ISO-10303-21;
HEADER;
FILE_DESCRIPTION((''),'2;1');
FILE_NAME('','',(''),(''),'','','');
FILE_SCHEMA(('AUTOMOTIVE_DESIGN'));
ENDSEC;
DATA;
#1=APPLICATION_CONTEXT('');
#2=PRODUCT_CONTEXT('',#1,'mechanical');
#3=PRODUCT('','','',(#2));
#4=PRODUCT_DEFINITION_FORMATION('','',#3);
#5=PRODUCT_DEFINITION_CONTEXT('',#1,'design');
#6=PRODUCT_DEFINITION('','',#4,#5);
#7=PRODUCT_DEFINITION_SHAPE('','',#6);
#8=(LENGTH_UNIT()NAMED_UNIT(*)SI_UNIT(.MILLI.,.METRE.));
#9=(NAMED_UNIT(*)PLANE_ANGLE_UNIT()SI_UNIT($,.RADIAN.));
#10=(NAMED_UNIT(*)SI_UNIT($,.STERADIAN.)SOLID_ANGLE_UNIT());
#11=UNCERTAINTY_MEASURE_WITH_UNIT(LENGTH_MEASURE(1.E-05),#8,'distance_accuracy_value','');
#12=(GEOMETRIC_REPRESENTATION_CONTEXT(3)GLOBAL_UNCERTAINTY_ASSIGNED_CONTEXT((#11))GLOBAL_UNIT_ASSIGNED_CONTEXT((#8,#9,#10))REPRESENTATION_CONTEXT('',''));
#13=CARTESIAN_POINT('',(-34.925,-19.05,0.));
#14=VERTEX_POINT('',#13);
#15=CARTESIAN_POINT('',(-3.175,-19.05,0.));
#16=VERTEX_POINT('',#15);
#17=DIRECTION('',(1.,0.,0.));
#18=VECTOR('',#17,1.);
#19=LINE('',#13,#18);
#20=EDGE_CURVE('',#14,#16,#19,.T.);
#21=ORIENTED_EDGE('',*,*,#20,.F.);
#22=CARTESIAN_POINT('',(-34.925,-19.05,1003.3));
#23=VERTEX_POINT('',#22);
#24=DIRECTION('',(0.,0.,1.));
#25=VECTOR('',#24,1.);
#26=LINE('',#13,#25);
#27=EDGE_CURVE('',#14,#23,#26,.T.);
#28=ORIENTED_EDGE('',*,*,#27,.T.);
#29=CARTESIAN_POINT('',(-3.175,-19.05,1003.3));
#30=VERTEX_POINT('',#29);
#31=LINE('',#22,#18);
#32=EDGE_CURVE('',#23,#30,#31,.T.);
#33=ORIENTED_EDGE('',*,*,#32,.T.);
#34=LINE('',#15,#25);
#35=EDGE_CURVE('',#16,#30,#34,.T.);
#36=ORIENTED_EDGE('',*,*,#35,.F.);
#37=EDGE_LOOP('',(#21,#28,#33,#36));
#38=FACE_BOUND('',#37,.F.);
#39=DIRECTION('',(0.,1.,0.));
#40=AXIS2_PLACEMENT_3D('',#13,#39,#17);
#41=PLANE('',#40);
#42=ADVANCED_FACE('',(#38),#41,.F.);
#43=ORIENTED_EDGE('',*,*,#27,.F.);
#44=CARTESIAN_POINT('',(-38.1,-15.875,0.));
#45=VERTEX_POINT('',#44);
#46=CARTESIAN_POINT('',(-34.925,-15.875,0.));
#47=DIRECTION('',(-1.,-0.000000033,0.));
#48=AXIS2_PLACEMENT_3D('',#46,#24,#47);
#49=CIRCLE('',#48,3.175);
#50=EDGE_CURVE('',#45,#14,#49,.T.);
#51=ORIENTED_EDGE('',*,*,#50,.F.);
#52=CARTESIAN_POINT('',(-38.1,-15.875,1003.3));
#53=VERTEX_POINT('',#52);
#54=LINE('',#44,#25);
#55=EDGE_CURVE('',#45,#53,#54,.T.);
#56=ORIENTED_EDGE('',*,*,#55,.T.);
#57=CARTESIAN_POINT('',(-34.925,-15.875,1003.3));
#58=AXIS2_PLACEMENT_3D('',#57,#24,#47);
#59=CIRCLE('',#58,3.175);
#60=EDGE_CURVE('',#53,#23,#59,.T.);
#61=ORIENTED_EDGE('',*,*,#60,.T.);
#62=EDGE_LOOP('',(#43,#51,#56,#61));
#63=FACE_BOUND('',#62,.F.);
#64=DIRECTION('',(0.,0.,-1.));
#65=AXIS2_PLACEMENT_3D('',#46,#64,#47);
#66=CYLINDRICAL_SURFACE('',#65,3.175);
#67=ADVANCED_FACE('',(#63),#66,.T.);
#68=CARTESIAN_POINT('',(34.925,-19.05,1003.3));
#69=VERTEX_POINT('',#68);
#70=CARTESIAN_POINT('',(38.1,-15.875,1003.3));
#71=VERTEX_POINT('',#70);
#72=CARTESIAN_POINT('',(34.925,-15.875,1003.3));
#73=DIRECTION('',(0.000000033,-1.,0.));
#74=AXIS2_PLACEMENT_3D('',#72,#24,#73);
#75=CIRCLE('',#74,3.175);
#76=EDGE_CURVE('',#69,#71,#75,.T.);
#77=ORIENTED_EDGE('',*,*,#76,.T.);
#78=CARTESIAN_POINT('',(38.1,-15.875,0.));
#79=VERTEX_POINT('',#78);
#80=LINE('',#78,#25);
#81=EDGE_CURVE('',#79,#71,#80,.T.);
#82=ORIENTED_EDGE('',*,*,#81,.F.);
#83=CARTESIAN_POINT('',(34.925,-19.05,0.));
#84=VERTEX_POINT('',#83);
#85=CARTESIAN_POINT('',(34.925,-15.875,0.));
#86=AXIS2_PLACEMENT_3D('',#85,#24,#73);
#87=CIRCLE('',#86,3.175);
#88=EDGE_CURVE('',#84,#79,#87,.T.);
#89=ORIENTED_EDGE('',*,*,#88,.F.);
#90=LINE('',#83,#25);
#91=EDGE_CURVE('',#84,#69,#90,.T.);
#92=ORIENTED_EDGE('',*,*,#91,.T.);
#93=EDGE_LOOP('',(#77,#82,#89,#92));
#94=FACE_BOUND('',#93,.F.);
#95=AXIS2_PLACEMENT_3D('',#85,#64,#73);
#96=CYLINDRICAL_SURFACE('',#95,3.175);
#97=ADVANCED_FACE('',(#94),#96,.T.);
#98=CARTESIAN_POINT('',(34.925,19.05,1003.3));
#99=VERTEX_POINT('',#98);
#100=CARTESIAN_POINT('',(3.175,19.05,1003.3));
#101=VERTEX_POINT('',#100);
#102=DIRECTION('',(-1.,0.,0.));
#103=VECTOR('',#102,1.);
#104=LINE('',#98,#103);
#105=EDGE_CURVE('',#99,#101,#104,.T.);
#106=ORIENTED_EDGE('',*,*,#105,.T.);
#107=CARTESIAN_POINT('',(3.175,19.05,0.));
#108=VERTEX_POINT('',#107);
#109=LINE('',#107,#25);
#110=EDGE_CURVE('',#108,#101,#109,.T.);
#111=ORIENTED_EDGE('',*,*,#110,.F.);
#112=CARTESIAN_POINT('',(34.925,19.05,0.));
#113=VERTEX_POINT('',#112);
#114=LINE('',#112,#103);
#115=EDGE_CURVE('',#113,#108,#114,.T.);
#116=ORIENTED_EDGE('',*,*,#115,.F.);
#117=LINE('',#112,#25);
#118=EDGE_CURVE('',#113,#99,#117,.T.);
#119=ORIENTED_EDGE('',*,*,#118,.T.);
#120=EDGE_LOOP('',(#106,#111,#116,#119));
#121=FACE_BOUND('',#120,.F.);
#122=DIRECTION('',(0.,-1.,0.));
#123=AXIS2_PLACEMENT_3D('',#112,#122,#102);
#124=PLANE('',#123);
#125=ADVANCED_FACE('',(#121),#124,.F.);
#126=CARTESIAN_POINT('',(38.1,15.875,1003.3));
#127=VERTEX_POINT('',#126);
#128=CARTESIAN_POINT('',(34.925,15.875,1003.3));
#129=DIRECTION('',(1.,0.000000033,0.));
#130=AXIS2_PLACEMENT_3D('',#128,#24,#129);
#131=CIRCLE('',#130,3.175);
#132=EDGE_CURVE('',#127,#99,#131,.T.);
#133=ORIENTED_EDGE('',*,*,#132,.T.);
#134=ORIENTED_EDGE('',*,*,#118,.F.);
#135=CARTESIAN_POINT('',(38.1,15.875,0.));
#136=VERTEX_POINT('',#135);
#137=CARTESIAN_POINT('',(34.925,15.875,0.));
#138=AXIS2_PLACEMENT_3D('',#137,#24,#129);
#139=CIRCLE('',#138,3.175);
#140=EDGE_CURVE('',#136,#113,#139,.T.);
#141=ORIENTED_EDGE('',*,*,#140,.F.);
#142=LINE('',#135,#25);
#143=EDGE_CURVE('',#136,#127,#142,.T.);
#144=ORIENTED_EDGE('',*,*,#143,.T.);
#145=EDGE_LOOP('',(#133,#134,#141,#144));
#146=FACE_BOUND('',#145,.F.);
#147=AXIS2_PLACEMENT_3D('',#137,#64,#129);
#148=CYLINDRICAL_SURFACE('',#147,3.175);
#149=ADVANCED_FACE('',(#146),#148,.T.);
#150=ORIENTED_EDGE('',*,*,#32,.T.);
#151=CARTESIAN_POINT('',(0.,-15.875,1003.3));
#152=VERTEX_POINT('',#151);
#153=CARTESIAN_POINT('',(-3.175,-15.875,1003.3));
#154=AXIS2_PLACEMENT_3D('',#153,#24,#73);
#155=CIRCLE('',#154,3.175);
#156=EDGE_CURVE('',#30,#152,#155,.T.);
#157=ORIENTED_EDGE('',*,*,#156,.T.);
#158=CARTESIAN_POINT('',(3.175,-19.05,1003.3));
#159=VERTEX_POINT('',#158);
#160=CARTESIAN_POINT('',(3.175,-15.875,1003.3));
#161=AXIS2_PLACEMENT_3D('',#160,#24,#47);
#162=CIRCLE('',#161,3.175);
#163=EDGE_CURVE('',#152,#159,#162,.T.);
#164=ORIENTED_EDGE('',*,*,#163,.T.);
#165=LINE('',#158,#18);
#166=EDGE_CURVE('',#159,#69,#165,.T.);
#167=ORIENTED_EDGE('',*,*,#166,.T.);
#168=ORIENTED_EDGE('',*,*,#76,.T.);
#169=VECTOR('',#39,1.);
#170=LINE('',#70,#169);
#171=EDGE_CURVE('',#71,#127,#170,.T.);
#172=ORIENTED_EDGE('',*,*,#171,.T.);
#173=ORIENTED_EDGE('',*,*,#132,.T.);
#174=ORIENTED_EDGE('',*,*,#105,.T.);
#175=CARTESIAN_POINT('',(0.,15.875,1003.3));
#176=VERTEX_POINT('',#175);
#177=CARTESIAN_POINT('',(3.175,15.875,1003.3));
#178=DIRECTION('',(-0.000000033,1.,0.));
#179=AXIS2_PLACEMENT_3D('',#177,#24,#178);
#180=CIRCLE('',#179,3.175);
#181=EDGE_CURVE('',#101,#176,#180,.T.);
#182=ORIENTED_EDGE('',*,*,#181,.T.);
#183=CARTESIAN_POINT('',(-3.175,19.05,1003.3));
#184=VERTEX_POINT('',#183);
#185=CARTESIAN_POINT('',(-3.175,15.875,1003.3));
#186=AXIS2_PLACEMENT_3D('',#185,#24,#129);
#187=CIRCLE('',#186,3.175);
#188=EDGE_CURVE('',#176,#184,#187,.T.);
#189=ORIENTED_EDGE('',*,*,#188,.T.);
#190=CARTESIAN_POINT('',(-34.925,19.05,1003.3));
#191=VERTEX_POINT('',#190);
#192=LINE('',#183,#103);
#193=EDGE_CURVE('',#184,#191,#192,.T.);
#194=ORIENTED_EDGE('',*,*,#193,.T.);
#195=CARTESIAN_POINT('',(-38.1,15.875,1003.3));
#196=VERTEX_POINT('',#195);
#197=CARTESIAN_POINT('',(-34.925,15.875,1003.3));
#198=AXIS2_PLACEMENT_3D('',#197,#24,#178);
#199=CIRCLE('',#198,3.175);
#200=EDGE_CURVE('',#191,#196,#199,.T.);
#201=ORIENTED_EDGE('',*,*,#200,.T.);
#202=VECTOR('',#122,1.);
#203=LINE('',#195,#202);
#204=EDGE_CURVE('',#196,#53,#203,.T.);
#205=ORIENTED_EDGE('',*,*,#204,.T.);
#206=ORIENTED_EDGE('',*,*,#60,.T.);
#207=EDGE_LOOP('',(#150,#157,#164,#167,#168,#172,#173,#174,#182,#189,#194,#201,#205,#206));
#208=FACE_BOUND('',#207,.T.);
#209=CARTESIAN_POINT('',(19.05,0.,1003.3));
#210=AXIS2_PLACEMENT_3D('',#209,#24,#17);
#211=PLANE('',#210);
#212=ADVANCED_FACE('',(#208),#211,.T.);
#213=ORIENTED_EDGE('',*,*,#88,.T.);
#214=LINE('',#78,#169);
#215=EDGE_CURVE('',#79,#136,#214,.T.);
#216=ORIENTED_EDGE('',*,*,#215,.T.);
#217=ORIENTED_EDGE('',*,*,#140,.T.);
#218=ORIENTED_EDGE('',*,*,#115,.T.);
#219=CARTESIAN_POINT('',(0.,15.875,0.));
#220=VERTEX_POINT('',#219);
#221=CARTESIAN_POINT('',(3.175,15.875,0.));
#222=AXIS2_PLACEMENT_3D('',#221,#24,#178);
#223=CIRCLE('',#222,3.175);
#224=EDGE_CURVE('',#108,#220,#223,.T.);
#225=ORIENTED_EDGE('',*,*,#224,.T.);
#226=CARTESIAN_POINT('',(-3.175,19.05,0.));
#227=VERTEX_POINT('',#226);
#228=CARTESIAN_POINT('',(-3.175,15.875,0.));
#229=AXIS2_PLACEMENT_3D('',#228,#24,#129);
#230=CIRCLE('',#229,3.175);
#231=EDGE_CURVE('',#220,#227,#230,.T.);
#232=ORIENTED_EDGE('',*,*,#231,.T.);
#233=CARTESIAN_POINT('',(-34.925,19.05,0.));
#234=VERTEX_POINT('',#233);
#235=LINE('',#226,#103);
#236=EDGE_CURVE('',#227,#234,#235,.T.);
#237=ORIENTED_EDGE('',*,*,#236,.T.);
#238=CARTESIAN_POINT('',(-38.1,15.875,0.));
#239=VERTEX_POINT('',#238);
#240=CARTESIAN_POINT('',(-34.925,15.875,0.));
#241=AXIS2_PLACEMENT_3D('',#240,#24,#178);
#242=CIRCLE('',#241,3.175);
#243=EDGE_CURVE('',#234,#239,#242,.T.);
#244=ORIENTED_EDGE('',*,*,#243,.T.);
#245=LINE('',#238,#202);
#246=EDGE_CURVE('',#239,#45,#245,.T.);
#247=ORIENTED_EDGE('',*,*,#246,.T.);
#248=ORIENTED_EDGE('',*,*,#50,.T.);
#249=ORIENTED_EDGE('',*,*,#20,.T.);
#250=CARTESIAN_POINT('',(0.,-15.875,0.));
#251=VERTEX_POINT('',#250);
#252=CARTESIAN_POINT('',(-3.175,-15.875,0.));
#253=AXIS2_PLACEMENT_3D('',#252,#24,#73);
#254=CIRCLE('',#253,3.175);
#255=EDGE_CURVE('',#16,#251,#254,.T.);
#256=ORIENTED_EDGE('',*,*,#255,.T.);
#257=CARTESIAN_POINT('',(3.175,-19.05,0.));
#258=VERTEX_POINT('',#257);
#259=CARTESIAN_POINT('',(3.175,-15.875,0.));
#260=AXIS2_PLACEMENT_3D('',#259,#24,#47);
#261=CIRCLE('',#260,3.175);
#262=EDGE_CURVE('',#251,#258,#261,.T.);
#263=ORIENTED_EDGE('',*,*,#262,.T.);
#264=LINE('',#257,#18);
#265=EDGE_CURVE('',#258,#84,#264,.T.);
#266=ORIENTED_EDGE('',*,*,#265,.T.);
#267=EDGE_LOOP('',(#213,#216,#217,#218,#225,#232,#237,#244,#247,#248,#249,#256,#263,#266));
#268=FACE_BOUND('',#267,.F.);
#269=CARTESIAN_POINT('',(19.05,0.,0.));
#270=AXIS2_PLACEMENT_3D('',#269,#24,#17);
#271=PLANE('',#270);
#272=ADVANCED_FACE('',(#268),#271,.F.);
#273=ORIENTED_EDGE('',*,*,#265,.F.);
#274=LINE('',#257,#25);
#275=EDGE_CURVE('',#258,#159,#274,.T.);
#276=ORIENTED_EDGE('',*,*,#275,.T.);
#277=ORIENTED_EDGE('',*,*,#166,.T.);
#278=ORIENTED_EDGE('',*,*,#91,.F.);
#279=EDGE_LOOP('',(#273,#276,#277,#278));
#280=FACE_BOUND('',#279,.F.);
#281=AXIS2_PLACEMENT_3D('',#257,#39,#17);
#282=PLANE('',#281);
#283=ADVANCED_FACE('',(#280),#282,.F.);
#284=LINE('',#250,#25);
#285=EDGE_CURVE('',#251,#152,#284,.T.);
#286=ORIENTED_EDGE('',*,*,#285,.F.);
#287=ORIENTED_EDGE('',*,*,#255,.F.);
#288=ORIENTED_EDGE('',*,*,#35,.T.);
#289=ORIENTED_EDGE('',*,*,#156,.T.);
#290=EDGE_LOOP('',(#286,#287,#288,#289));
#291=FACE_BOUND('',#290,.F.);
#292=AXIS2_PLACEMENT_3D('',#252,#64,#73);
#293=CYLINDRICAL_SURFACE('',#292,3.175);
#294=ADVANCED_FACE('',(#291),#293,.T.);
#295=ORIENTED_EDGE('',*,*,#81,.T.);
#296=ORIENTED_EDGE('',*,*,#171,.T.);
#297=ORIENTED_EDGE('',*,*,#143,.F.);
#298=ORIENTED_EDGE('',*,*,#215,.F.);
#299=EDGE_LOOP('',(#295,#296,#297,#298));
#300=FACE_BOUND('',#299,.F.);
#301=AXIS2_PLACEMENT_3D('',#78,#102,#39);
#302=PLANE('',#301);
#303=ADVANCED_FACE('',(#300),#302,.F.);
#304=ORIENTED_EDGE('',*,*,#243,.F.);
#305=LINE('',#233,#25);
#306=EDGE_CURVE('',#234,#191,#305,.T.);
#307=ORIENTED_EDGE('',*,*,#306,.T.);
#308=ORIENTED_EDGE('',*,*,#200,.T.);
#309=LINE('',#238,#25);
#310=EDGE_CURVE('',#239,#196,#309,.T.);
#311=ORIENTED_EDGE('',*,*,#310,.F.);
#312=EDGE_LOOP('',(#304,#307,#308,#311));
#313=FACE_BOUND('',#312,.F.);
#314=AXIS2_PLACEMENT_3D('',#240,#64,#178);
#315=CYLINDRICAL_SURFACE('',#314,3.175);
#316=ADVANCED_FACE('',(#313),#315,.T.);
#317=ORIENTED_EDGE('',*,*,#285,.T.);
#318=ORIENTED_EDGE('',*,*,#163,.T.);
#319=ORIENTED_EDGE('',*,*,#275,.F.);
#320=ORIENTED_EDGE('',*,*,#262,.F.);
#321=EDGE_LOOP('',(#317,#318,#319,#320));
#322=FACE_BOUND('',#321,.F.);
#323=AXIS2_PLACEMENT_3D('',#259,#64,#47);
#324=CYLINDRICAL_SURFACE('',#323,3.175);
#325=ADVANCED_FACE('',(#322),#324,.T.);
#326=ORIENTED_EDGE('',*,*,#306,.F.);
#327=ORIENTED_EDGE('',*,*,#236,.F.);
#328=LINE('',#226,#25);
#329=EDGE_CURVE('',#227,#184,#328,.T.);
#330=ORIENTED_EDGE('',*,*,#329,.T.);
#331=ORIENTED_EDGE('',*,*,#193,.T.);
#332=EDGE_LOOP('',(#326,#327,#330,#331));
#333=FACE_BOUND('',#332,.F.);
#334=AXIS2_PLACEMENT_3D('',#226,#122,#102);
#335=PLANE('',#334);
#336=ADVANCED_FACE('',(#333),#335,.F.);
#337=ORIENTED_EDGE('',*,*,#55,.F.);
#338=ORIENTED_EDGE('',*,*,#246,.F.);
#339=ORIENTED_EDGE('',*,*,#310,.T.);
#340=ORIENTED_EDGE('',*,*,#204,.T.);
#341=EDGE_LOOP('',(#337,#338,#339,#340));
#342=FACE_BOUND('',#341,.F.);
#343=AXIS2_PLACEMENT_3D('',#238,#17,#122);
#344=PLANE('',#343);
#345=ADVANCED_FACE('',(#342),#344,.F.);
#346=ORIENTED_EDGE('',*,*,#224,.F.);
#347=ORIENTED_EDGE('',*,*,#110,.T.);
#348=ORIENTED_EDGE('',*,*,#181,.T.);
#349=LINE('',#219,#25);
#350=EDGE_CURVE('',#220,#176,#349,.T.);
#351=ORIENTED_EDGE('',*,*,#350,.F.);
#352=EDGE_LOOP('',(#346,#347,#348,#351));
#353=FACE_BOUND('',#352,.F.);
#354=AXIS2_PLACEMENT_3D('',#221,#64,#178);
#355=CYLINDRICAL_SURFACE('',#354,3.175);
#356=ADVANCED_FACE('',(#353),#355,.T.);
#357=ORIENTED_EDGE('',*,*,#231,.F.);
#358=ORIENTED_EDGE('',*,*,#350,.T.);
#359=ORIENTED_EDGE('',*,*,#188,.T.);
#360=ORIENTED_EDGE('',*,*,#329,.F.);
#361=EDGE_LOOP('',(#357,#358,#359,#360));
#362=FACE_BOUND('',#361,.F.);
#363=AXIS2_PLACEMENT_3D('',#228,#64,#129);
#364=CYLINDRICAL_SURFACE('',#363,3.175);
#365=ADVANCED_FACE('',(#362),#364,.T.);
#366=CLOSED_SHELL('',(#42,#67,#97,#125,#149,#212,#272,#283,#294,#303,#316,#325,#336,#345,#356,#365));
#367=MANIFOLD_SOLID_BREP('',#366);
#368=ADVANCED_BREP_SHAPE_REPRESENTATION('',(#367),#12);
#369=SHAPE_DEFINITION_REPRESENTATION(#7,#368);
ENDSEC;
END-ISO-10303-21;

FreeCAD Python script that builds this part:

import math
import FreeCAD as App
import Part
import Sketcher
Q = App.Units.Quantity

doc = App.newDocument("Part")
body = doc.addObject("PartDesign::Body", "Body")

# Sketch on XY plane
sketch1 = body.newObject("Sketcher::SketchObject", "Sketch")
sketch1.AttachmentSupport = (doc.getObject("XY_Plane"), [""])
sketch1.MapMode = "FlatFace"
sketch1.addGeometry(Part.ArcOfCircle(Part.Circle(App.Vector(34.9, 15.9, 0), App.Vector(0, 0, 1), 3.2), math.radians(0), math.radians(90)), False)
sketch1.addGeometry(Part.LineSegment(App.Vector(34.9, 19.1, 0), App.Vector(3.2, 19.1, 0)), False)
sketch1.addGeometry(Part.ArcOfCircle(Part.Circle(App.Vector(3.2, 15.9, 0), App.Vector(0, 0, 1), 3.2), math.radians(90), math.radians(180)), False)
sketch1.addGeometry(Part.ArcOfCircle(Part.Circle(App.Vector(-3.2, 15.9, 0), App.Vector(0, 0, 1), 3.2), math.radians(0), math.radians(90)), False)
sketch1.addGeometry(Part.LineSegment(App.Vector(-3.2, 19.1, 0), App.Vector(-34.9, 19.1, 0)), False)
sketch1.addGeometry(Part.ArcOfCircle(Part.Circle(App.Vector(-34.9, 15.9, 0), App.Vector(0, 0, 1), 3.2), math.radians(90), math.radians(180)), False)
sketch1.addGeometry(Part.LineSegment(App.Vector(-38.1, 15.9, 0), App.Vector(-38.1, -15.9, 0)), False)
sketch1.addGeometry(Part.ArcOfCircle(Part.Circle(App.Vector(-34.9, -15.9, 0), App.Vector(0, 0, 1), 3.2), math.radians(-180), math.radians(-90)), False)
sketch1.addGeometry(Part.LineSegment(App.Vector(-34.9, -19.1, 0), App.Vector(-3.2, -19.1, 0)), False)
sketch1.addGeometry(Part.ArcOfCircle(Part.Circle(App.Vector(-3.2, -15.9, 0), App.Vector(0, 0, 1), 3.2), math.radians(-90), math.radians(0)), False)
sketch1.addGeometry(Part.ArcOfCircle(Part.Circle(App.Vector(3.2, -15.9, 0), App.Vector(0, 0, 1), 3.2), math.radians(-180), math.radians(-90)), False)
sketch1.addGeometry(Part.LineSegment(App.Vector(3.2, -19.1, 0), App.Vector(34.9, -19.1, 0)), False)
sketch1.addGeometry(Part.ArcOfCircle(Part.Circle(App.Vector(34.9, -15.9, 0), App.Vector(0, 0, 1), 3.2), math.radians(-90), math.radians(0)), False)
sketch1.addGeometry(Part.LineSegment(App.Vector(38.1, -15.9, 0), App.Vector(38.1, 15.9, 0)), False)
sketch1.addConstraint(Sketcher.Constraint("Tangent", 0, 2, 1, 1))
sketch1.addConstraint(Sketcher.Constraint("Tangent", 1, 2, 2, 1))
sketch1.addConstraint(Sketcher.Constraint("Tangent", 2, 2, 3, 1))
sketch1.addConstraint(Sketcher.Constraint("Tangent", 3, 2, 4, 1))
sketch1.addConstraint(Sketcher.Constraint("Tangent", 4, 2, 5, 1))
sketch1.addConstraint(Sketcher.Constraint("Tangent", 5, 2, 6, 1))
sketch1.addConstraint(Sketcher.Constraint("Tangent", 6, 2, 7, 1))
sketch1.addConstraint(Sketcher.Constraint("Tangent", 7, 2, 8, 1))
sketch1.addConstraint(Sketcher.Constraint("Tangent", 8, 2, 9, 1))
sketch1.addConstraint(Sketcher.Constraint("Tangent", 9, 2, 10, 1))
sketch1.addConstraint(Sketcher.Constraint("Tangent", 10, 2, 11, 1))
sketch1.addConstraint(Sketcher.Constraint("Tangent", 11, 2, 12, 1))
sketch1.addConstraint(Sketcher.Constraint("Tangent", 12, 2, 13, 1))
sketch1.addConstraint(Sketcher.Constraint("Tangent", 13, 2, 0, 1))
sketch1.addConstraint(Sketcher.Constraint("Horizontal", 1))
sketch1.addConstraint(Sketcher.Constraint("Horizontal", 4))
sketch1.addConstraint(Sketcher.Constraint("Vertical", 6))
sketch1.addConstraint(Sketcher.Constraint("Horizontal", 8))
sketch1.addConstraint(Sketcher.Constraint("Horizontal", 11))
sketch1.addConstraint(Sketcher.Constraint("Vertical", 13))
sketch1.addConstraint(Sketcher.Constraint("Equal", 0, 2))
sketch1.addConstraint(Sketcher.Constraint("Equal", 2, 3))
sketch1.addConstraint(Sketcher.Constraint("Equal", 3, 5))
sketch1.addConstraint(Sketcher.Constraint("Equal", 5, 7))
sketch1.addConstraint(Sketcher.Constraint("Equal", 7, 9))
sketch1.addConstraint(Sketcher.Constraint("Equal", 9, 10))
sketch1.addConstraint(Sketcher.Constraint("Equal", 10, 12))
sketch1.addConstraint(Sketcher.Constraint("Symmetric", 0, 3, 7, 3, -1, 1))
sketch1.addConstraint(Sketcher.Constraint("Symmetric", 3, 3, 10, 3, -1, 1))
sketch1.addConstraint(Sketcher.Constraint("Symmetric", 2, 3, 3, 3, -2))
sketch1.addConstraint(Sketcher.Constraint("Equal", 11, 6))
sketch1.addConstraint(Sketcher.Constraint("Radius", 0, Q("0.125 in")))
sketch1.addConstraint(Sketcher.Constraint("DistanceX", 1, 2, 1, 1, Q("1.25 in")))
pad1 = body.newObject("PartDesign::Pad", "Pad")
pad1.Profile = sketch1
pad1.Length = Q("39.5 in")

doc.recompute()
